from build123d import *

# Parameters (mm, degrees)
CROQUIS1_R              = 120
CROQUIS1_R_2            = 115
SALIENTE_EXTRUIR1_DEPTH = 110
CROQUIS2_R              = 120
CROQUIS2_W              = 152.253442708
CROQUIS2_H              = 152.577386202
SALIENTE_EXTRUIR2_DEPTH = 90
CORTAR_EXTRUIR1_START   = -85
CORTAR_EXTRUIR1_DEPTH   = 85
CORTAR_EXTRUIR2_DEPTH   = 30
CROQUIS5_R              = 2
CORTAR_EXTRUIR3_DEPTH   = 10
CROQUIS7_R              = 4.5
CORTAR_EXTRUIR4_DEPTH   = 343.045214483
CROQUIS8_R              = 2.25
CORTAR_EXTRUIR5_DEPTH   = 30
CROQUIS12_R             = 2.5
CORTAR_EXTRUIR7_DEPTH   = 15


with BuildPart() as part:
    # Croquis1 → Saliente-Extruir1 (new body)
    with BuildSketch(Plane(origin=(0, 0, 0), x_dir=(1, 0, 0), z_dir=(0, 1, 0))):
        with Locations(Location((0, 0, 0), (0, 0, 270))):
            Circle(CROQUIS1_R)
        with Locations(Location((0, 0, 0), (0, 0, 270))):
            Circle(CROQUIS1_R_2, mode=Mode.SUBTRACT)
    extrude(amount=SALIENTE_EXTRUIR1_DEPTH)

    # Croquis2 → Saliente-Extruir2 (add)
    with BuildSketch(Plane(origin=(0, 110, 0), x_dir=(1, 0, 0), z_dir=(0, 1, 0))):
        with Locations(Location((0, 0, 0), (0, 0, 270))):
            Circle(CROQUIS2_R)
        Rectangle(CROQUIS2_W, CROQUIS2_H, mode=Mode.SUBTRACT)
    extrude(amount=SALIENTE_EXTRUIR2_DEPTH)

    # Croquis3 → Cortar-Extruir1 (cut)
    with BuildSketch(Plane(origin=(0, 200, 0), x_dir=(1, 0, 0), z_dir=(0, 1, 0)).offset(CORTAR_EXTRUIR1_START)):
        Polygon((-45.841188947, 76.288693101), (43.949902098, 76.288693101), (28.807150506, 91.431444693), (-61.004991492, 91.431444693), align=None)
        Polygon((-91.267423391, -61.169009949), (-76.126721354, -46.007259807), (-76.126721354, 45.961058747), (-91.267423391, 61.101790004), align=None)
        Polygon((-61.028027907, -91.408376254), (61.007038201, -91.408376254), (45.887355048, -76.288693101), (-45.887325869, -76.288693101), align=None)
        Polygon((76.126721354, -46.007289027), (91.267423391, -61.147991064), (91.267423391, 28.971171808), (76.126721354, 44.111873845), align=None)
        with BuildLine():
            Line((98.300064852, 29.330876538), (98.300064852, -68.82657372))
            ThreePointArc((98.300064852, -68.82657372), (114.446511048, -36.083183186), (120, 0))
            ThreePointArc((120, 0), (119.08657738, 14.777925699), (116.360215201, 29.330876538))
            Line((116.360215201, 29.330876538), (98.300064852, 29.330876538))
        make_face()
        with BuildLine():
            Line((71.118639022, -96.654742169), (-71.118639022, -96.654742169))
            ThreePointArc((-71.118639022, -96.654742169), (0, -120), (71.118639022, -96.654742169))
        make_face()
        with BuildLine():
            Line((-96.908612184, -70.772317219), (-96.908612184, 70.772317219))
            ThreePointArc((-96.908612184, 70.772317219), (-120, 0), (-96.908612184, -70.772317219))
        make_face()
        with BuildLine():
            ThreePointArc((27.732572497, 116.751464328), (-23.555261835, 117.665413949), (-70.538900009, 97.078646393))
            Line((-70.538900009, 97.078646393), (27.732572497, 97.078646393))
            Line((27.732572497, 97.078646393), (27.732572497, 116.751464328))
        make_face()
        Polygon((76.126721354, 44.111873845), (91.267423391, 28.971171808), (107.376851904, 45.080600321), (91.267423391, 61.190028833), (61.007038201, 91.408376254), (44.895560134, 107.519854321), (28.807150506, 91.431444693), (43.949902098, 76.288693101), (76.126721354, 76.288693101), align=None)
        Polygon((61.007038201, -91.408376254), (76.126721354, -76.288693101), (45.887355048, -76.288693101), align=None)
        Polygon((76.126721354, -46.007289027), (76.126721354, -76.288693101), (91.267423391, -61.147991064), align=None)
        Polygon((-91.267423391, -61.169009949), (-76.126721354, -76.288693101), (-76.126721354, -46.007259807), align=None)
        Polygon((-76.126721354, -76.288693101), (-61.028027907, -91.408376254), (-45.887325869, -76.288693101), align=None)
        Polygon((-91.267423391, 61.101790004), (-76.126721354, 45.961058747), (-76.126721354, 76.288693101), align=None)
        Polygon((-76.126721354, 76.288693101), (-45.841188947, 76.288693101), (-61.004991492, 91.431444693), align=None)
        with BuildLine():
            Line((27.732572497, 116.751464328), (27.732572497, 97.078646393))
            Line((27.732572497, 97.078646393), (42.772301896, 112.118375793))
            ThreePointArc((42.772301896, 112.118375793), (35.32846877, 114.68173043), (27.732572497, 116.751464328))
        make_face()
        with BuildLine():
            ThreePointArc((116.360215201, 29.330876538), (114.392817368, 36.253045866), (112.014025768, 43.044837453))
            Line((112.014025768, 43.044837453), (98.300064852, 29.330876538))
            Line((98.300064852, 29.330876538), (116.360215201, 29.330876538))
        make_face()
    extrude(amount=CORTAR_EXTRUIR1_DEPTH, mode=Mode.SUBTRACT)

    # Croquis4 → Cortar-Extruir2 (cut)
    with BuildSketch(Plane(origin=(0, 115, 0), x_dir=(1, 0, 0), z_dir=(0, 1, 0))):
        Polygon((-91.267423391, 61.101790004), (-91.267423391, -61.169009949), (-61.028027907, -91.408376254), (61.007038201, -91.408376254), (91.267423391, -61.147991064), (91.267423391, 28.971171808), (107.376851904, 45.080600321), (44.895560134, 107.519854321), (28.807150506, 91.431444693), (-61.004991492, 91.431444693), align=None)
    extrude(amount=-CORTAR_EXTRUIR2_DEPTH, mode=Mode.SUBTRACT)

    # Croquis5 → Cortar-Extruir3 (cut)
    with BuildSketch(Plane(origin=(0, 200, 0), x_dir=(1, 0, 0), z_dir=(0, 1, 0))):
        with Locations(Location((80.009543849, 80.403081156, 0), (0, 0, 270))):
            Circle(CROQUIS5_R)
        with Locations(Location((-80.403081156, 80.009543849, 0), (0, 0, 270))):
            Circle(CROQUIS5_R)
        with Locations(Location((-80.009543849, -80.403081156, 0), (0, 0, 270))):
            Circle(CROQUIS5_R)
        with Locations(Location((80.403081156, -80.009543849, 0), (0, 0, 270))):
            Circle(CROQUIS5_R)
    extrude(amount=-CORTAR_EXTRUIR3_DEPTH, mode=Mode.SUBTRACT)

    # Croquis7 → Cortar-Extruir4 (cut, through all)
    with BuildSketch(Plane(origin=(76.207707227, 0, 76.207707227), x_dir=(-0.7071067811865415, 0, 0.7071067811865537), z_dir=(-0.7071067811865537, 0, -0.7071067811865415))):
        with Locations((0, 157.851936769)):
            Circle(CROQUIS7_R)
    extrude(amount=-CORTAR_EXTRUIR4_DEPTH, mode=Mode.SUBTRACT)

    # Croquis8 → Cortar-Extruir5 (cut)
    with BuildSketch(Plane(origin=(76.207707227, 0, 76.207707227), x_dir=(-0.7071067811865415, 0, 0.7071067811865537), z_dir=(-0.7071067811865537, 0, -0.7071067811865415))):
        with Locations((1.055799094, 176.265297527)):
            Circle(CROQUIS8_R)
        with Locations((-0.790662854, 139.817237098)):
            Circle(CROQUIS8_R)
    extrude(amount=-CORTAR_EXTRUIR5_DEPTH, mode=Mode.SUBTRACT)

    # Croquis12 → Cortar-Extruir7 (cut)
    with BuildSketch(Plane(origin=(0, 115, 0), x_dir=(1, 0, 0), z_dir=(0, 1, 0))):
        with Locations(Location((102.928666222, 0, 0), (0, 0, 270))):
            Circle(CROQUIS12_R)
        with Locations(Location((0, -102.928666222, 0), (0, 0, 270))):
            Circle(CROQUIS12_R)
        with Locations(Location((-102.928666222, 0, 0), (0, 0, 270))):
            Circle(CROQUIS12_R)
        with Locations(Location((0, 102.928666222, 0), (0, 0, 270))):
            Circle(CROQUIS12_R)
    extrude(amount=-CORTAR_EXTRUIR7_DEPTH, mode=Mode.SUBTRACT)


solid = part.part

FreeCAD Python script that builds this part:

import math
import FreeCAD as App
import Part
import Sketcher

V = App.Vector
Q = App.Units.Quantity


def add_polygon(sketch, points):
    """Adds a closed chain of lines whose ends are joined by coincident constraints."""
    first, n = sketch.GeometryCount, len(points)
    for a, b in zip(points, points[1:] + points[:1]):
        sketch.addGeometry(Part.LineSegment(App.Vector(*a, 0), App.Vector(*b, 0)), False)
    for i in range(n):
        sketch.addConstraint(Sketcher.Constraint("Coincident", first + i, 2, first + (i + 1) % n, 1))

doc = App.newDocument("Part")
body = doc.addObject("PartDesign::Body", "Body")

sketch1 = doc.addObject("Sketcher::SketchObject", "Sketch")
body.addObject(sketch1)
sketch1.AttachmentSupport = (doc.XZ_Plane, [""])
sketch1.MapMode = "FlatFace"
sketch1.addGeometry([
    Part.Circle(V(0, 0, 0), V(0, 0, 1), 120),
    Part.Circle(V(0, 0, 0), V(0, 0, 1), 115),
], False)
sketch1.addConstraint([
    Sketcher.Constraint("Coincident", 0, 3, -1, 1),
    Sketcher.Constraint("Coincident", 1, 3, -1, 1),
    Sketcher.Constraint("Diameter", 0, Q("240 mm")),
    Sketcher.Constraint("Diameter", 1, Q("230 mm")),
])
pad1 = doc.addObject("PartDesign::Pad", "Pad")
body.addObject(pad1)
pad1.Profile = sketch1
pad1.Length = 110
pad1.Reversed = True

sketch2 = doc.addObject("Sketcher::SketchObject", "Sketch001")
body.addObject(sketch2)
sketch2.AttachmentSupport = (doc.XZ_Plane, [""])
sketch2.MapMode = "FlatFace"
sketch2.AttachmentOffset = App.Placement(V(0, 0, -110), App.Rotation())
sketch2.addGeometry(Part.Circle(V(0, 0, 0), V(0, 0, 1), 120), False)
add_polygon(sketch2, [(76.126721, 76.288693), (-76.126721, 76.288693), (-76.126721, -76.288693), (76.126721, -76.288693)])
sketch2.addConstraint([
    Sketcher.Constraint("Horizontal", 1),
    Sketcher.Constraint("Vertical", 2),
    Sketcher.Constraint("Horizontal", 3),
    Sketcher.Constraint("Vertical", 4),
    Sketcher.Constraint("Coincident", 0, 3, -1, 1),
    Sketcher.Constraint("Symmetric", 1, 2, 3, 2, -1, 1),
    Sketcher.Constraint("Diameter", 0, Q("240 mm")),
    Sketcher.Constraint("DistanceX", 1, 2, 1, 1, Q("152.253443 mm")),
    Sketcher.Constraint("DistanceY", 2, 2, 2, 1, Q("152.577386 mm")),
])
pad2 = doc.addObject("PartDesign::Pad", "Pad001")
body.addObject(pad2)
pad2.Profile = sketch2
pad2.Length = 90
pad2.Reversed = True

sketch3 = doc.addObject("Sketcher::SketchObject", "Sketch002")
body.addObject(sketch3)
sketch3.AttachmentSupport = (doc.XZ_Plane, [""])
sketch3.MapMode = "FlatFace"
sketch3.AttachmentOffset = App.Placement(V(0, 0, -115), App.Rotation())
add_polygon(sketch3, [(76.126721, -76.288693), (76.126721, 76.288693), (91.267423, 61.147991), (91.267423, -28.971172), (107.376852, -45.0806), (91.267423, -61.190029), (61.007038, -91.408376), (44.89556, -107.519854), (28.807151, -91.431445), (-61.004991, -91.431445), (-76.126721, -76.288693)])
add_polygon(sketch3, [(-91.267423, -61.10179), (-91.267423, 61.16901), (-76.126721, 76.288693), (-76.126721, -76.288693)])
add_polygon(sketch3, [(-61.028028, 91.408376), (61.007038, 91.408376), (76.126721, 76.288693), (-76.126721, 76.288693)])
sketch3.addGeometry(Part.LineSegment(V(98.300065, -29.330877, 0), V(98.300065, 68.826574, 0)), False)
sketch3.addGeometry(Part.ArcOfCircle(Part.Circle(V(0, 0, 0), V(0, 0, 1), 120), math.radians(0), math.radians(34.998485)), False)
sketch3.addGeometry(Part.ArcOfCircle(Part.Circle(V(0, 0, 0), V(0, 0, 1), 120), math.radians(-14.147795), math.radians(0)), False)
sketch3.addGeometry(Part.ArcOfCircle(Part.Circle(V(0, 0, 0), V(0, 0, 1), 120), math.radians(-21.020808), math.radians(-14.147795)), False)
sketch3.addGeometry(Part.LineSegment(V(112.014026, -43.044837, 0), V(98.300065, -29.330877, 0)), False)
sketch3.addGeometry(Part.LineSegment(V(71.118639, 96.654742, 0), V(-71.118639, 96.654742, 0)), False)
sketch3.addGeometry(Part.ArcOfCircle(Part.Circle(V(0, 0, 0), V(0, 0, 1), 120), math.radians(53.654335), math.radians(126.345665)), False)
sketch3.addGeometry(Part.LineSegment(V(-96.908612, 70.772317, 0), V(-96.908612, -70.772317, 0)), False)
sketch3.addGeometry(Part.ArcOfCircle(Part.Circle(V(0, 0, 0), V(0, 0, 1), 120), math.radians(143.859361), math.radians(216.140639)), False)
sketch3.addGeometry(Part.ArcOfCircle(Part.Circle(V(0, 0, 0), V(0, 0, 1), 120), math.radians(-126.002756), math.radians(-76.637877)), False)
sketch3.addGeometry(Part.LineSegment(V(-70.5389, -97.078646, 0), V(27.732572, -97.078646, 0)), False)
sketch3.addGeometry(Part.LineSegment(V(27.732572, -97.078646, 0), V(42.772302, -112.118376, 0)), False)
sketch3.addGeometry(Part.ArcOfCircle(Part.Circle(V(0, 0, 0), V(0, 0, 1), 120), math.radians(-76.637877), math.radians(-69.11853)), False)
sketch3.addConstraint([
    Sketcher.Constraint("Coincident", 19, 2, 20, 2),
    Sketcher.Constraint("Tangent", 20, 1, 21, 2),
    Sketcher.Constraint("Tangent", 21, 1, 22, 2),
    Sketcher.Constraint("Coincident", 22, 1, 23, 1),
    Sketcher.Constraint("Coincident", 23, 2, 19, 1),
    Sketcher.Constraint("Coincident", 24, 1, 25, 1),
    Sketcher.Constraint("Coincident", 25, 2, 24, 2),
    Sketcher.Constraint("Coincident", 26, 1, 27, 1),
    Sketcher.Constraint("Coincident", 27, 2, 26, 2),
    Sketcher.Constraint("Coincident", 28, 1, 29, 1),
    Sketcher.Constraint("Coincident", 29, 2, 30, 1),
    Sketcher.Constraint("Coincident", 30, 2, 31, 2),
    Sketcher.Constraint("Tangent", 31, 1, 28, 2),
    Sketcher.Constraint("Vertical", 0),
    Sketcher.Constraint("Vertical", 2),
    Sketcher.Constraint("Horizontal", 8),
    Sketcher.Constraint("Horizontal", 10),
    Sketcher.Constraint("Vertical", 11),
    Sketcher.Constraint("Vertical", 13),
    Sketcher.Constraint("Horizontal", 15),
    Sketcher.Constraint("Horizontal", 17),
    Sketcher.Constraint("Vertical", 19),
    Sketcher.Constraint("Horizontal", 24),
    Sketcher.Constraint("Vertical", 26),
    Sketcher.Constraint("Horizontal", 29),
    Sketcher.Constraint("Coincident", 20, 3, -1, 1),
    Sketcher.Constraint("Coincident", 22, 3, -1, 1),
    Sketcher.Constraint("Coincident", 25, 3, -1, 1),
    Sketcher.Constraint("Coincident", 27, 3, -1, 1),
    Sketcher.Constraint("Coincident", 28, 3, -1, 1),
    Sketcher.Constraint("Coincident", 13, 2, 9, 2),
    Sketcher.Constraint("Coincident", 16, 2, 0, 2),
    Sketcher.Constraint("Coincident", 17, 2, 12, 2),
    Sketcher.Constraint("Equal", 22, 25),
    Sketcher.Constraint("Equal", 25, 27),
    Sketcher.Constraint("Equal", 27, 28),
    Sketcher.Constraint("Equal", 28, 31),
    Sketcher.Constraint("Symmetric", 0, 2, 9, 2, -1, 1),
    Sketcher.Constraint("Symmetric", 5, 2, 15, 2, -1),
    Sketcher.Constraint("PointOnObject", 20, 1, -1),
    Sketcher.Constraint("Parallel", 1, 3),
    Sketcher.Constraint("Perpendicular", 3, 4),
    Sketcher.Constraint("Parallel", 4, 6),
    Sketcher.Constraint("Perpendicular", 6, 7),
    Sketcher.Constraint("Perpendicular", 5, 9),
    Sketcher.Constraint("Perpendicular", 9, 12),
    Sketcher.Constraint("Parallel", 7, 16),
    Sketcher.Constraint("Parallel", 16, 23),
    Sketcher.Constraint("Parallel", 23, 30),
    Sketcher.Constraint("Horizontal", 21, 1, 23, 2),
    Sketcher.Constraint("Vertical", 2, 2, 4, 2),
    Sketcher.Constraint("Vertical", 29, 2, 31, 1),
    Sketcher.Constraint("Equal", 3, 4),
    Sketcher.Constraint("Radius", 20, Q("120 mm")),
    Sketcher.Constraint("DistanceY", 30, 2, 5, 2, Q("20.71 mm")),
    Sketcher.Constraint("DistanceY", 11, 1, 11, 2, Q("122.2708 mm")),
    Sketcher.Constraint("DistanceX", 8, 2, 8, 1, Q("89.812142 mm")),
    Sketcher.Constraint("DistanceX", 24, 2, 24, 1, Q("142.237278 mm")),
    Sketcher.Constraint("DistanceY", 19, 1, 19, 2, Q("98.15745 mm")),
    Sketcher.Constraint("DistanceY", 3, 2, -1, 1, Q("45.0806 mm")),
    Sketcher.Constraint("DistanceX", 28, 1, -1, 1, Q("70.5389 mm")),
    Sketcher.Constraint("DistanceX", -1, 1, 30, 2, Q("42.772302 mm")),
    Sketcher.Constraint("DistanceX", 7, 2, 3, 2, Q("78.569701 mm")),
    Sketcher.Constraint("DistanceX", 15, 2, 24, 1, Q("10.111601 mm")),
    Sketcher.Constraint("DistanceY", 28, 1, 8, 2, Q("5.647202 mm")),
    Sketcher.Constraint("Distance", 12, Q("21.397329 mm")),
    Sketcher.Constraint("Distance", 14, Q("21.44488 mm")),
    Sketcher.Constraint("Distance", 23, Q("19.39447 mm")),
    Sketcher.Constraint("DistanceX", 15, 1, 15, 2, Q("122.035066 mm")),
    Sketcher.Constraint("DistanceY", 26, 2, 26, 1, Q("141.544634 mm")),
    Sketcher.Constraint("DistanceY", -1, 1, 1, 2, Q("61.147991 mm")),
])
pocket1 = doc.addObject("PartDesign::Pocket", "Pocket")
body.addObject(pocket1)
pocket1.Profile = sketch3
pocket1.Length = 85

sketch4 = doc.addObject("Sketcher::SketchObject", "Sketch003")
body.addObject(sketch4)
sketch4.AttachmentSupport = (doc.XZ_Plane, [""])
sketch4.MapMode = "FlatFace"
sketch4.AttachmentOffset = App.Placement(V(0, 0, -115), App.Rotation())
add_polygon(sketch4, [(-91.267423, -61.10179), (-91.267423, 61.16901), (-61.028028, 91.408376), (61.007038, 91.408376), (91.267423, 61.147991), (91.267423, -28.971172), (107.376852, -45.0806), (44.89556, -107.519854), (28.807151, -91.431445), (-61.004991, -91.431445)])
sketch4.addConstraint([
    Sketcher.Constraint("Vertical", 0),
    Sketcher.Constraint("Horizontal", 2),
    Sketcher.Constraint("Vertical", 4),
    Sketcher.Constraint("Horizontal", 8),
    Sketcher.Constraint("Perpendicular", 1, 3),
    Sketcher.Constraint("Parallel", 3, 5),
    Sketcher.Constraint("Parallel", 5, 7),
    Sketcher.Constraint("Angle", 3, Q("-45 deg")),
    Sketcher.Constraint("DistanceY", 0, 1, 0, 2, Q("122.2708 mm")),
    Sketcher.Constraint("Distance", 9, Q("42.845102 mm")),
    Sketcher.Constraint("DistanceX", 8, 2, 8, 1, Q("89.812142 mm")),
    Sketcher.Constraint("DistanceY", 5, 2, -1, 1, Q("45.0806 mm")),
    Sketcher.Constraint("DistanceX", 7, 2, 5, 2, Q("78.569701 mm")),
    Sketcher.Constraint("Distance", 6, Q("88.33217 mm")),
    Sketcher.Constraint("DistanceX", 2, 1, 2, 2, Q("122.035066 mm")),
    Sketcher.Constraint("DistanceY", 4, 2, 4, 1, Q("90.119163 mm")),
    Sketcher.Constraint("DistanceY", -1, 1, 0, 2, Q("61.16901 mm")),
    Sketcher.Constraint("DistanceX", -1, 1, 2, 2, Q("61.007038 mm")),
    Sketcher.Constraint("DistanceY", -1, 1, 3, 2, Q("61.147991 mm")),
    Sketcher.Constraint("DistanceX", -1, 1, 6, 2, Q("44.89556 mm")),
])
pocket2 = doc.addObject("PartDesign::Pocket", "Pocket001")
body.addObject(pocket2)
pocket2.Profile = sketch4
pocket2.Length = 30
pocket2.Reversed = True

sketch5 = doc.addObject("Sketcher::SketchObject", "Sketch004")
body.addObject(sketch5)
sketch5.AttachmentSupport = (doc.XZ_Plane, [""])
sketch5.MapMode = "FlatFace"
sketch5.AttachmentOffset = App.Placement(V(0, 0, -200), App.Rotation())
sketch5.addGeometry([
    Part.Circle(V(80.009544, -80.403081, 0), V(0, 0, 1), 2),
    Part.Circle(V(-80.403081, -80.009544, 0), V(0, 0, 1), 2),
    Part.Circle(V(-80.009544, 80.403081, 0), V(0, 0, 1), 2),
    Part.Circle(V(80.403081, 80.009544, 0), V(0, 0, 1), 2),
], False)
sketch5.addConstraint([
    Sketcher.Constraint("Equal", 0, 1),
    Sketcher.Constraint("Equal", 1, 2),
    Sketcher.Constraint("Equal", 2, 3),
    Sketcher.Constraint("Symmetric", 0, 3, 2, 3, -1, 1),
    Sketcher.Constraint("Symmetric", 1, 3, 3, 3, -1, 1),
    Sketcher.Constraint("Diameter", 0, Q("4 mm")),
    Sketcher.Constraint("DistanceY", 0, 3, -1, 1, Q("80.403081 mm")),
    Sketcher.Constraint("DistanceX", 1, 3, -1, 1, Q("80.403081 mm")),
    Sketcher.Constraint("DistanceX", -1, 1, 0, 3, Q("80.009544 mm")),
    Sketcher.Constraint("DistanceY", 1, 3, -1, 1, Q("80.009544 mm")),
])
pocket3 = doc.addObject("PartDesign::Pocket", "Pocket002")
body.addObject(pocket3)
pocket3.Profile = sketch5
pocket3.Length = 10
pocket3.Reversed = True

sketch6 = doc.addObject("Sketcher::SketchObject", "Sketch005")
body.addObject(sketch6)
sketch6.Placement = App.Placement(V(76.207707, 0, 76.207707), App.Rotation(V(-0.707106781, 0, 0.707106781), V(0, 0.999999999, 0), V(-0.707106781, 0, -0.707106781), "ZXY"))
sketch6.addGeometry(Part.Circle(V(0, 157.851937, 0), V(0, 0, 1), 4.5), False)
sketch6.addConstraint([
    Sketcher.Constraint("PointOnObject", 0, 3, -2),
    Sketcher.Constraint("Diameter", 0, Q("9 mm")),
    Sketcher.Constraint("DistanceY", -1, 1, 0, 3, Q("157.851937 mm")),
])
pocket4 = doc.addObject("PartDesign::Pocket", "Pocket003")
body.addObject(pocket4)
pocket4.Profile = sketch6
pocket4.Type = "ThroughAll"

sketch7 = doc.addObject("Sketcher::SketchObject", "Sketch006")
body.addObject(sketch7)
sketch7.Placement = App.Placement(V(76.207707, 0, 76.207707), App.Rotation(V(-0.707106781, 0, 0.707106781), V(0, 0.999999999, 0), V(-0.707106781, 0, -0.707106781), "ZXY"))
sketch7.addGeometry([
    Part.Circle(V(1.055799, 176.265297, 0), V(0, 0, 1), 2.25),
    Part.Circle(V(-0.790663, 139.817237, 0), V(0, 0, 1), 2.25),
], False)
sketch7.addConstraint([
    Sketcher.Constraint("Equal", 0, 1),
    Sketcher.Constraint("Diameter", 0, Q("4.5 mm")),
    Sketcher.Constraint("DistanceX", -1, 1, 0, 3, Q("1.055799 mm")),
    Sketcher.Constraint("DistanceX", 1, 3, 0, 3, Q("1.846462 mm")),
    Sketcher.Constraint("DistanceY", 1, 3, 0, 3, Q("36.44806 mm")),
    Sketcher.Constraint("DistanceY", -1, 1, 0, 3, Q("176.265297 mm")),
])
pocket5 = doc.addObject("PartDesign::Pocket", "Pocket004")
body.addObject(pocket5)
pocket5.Profile = sketch7
pocket5.Length = 30

sketch8 = doc.addObject("Sketcher::SketchObject", "Sketch007")
body.addObject(sketch8)
sketch8.AttachmentSupport = (doc.XZ_Plane, [""])
sketch8.MapMode = "FlatFace"
sketch8.AttachmentOffset = App.Placement(V(0, 0, -115), App.Rotation())
sketch8.addGeometry([
    Part.Circle(V(102.928666, 0, 0), V(0, 0, 1), 2.5),
    Part.Circle(V(0, 102.928666, 0), V(0, 0, 1), 2.5),
    Part.Circle(V(-102.928666, 0, 0), V(0, 0, 1), 2.5),
    Part.Circle(V(0, -102.928666, 0), V(0, 0, 1), 2.5),
], False)
sketch8.addConstraint([
    Sketcher.Constraint("Equal", 0, 1),
    Sketcher.Constraint("Equal", 1, 2),
    Sketcher.Constraint("Equal", 2, 3),
    Sketcher.Constraint("Symmetric", 0, 3, 2, 3, -1, 1),
    Sketcher.Constraint("Symmetric", 1, 3, 3, 3, -1, 1),
    Sketcher.Constraint("PointOnObject", 0, 3, -1),
    Sketcher.Constraint("PointOnObject", 1, 3, -2),
    Sketcher.Constraint("Diameter", 0, Q("5 mm")),
    Sketcher.Constraint("DistanceX", -1, 1, 0, 3, Q("102.928666 mm")),
    Sketcher.Constraint("DistanceY", -1, 1, 1, 3, Q("102.928666 mm")),
])
pocket6 = doc.addObject("PartDesign::Pocket", "Pocket005")
body.addObject(pocket6)
pocket6.Profile = sketch8
pocket6.Length = 15
pocket6.Reversed = True

doc.recompute()
